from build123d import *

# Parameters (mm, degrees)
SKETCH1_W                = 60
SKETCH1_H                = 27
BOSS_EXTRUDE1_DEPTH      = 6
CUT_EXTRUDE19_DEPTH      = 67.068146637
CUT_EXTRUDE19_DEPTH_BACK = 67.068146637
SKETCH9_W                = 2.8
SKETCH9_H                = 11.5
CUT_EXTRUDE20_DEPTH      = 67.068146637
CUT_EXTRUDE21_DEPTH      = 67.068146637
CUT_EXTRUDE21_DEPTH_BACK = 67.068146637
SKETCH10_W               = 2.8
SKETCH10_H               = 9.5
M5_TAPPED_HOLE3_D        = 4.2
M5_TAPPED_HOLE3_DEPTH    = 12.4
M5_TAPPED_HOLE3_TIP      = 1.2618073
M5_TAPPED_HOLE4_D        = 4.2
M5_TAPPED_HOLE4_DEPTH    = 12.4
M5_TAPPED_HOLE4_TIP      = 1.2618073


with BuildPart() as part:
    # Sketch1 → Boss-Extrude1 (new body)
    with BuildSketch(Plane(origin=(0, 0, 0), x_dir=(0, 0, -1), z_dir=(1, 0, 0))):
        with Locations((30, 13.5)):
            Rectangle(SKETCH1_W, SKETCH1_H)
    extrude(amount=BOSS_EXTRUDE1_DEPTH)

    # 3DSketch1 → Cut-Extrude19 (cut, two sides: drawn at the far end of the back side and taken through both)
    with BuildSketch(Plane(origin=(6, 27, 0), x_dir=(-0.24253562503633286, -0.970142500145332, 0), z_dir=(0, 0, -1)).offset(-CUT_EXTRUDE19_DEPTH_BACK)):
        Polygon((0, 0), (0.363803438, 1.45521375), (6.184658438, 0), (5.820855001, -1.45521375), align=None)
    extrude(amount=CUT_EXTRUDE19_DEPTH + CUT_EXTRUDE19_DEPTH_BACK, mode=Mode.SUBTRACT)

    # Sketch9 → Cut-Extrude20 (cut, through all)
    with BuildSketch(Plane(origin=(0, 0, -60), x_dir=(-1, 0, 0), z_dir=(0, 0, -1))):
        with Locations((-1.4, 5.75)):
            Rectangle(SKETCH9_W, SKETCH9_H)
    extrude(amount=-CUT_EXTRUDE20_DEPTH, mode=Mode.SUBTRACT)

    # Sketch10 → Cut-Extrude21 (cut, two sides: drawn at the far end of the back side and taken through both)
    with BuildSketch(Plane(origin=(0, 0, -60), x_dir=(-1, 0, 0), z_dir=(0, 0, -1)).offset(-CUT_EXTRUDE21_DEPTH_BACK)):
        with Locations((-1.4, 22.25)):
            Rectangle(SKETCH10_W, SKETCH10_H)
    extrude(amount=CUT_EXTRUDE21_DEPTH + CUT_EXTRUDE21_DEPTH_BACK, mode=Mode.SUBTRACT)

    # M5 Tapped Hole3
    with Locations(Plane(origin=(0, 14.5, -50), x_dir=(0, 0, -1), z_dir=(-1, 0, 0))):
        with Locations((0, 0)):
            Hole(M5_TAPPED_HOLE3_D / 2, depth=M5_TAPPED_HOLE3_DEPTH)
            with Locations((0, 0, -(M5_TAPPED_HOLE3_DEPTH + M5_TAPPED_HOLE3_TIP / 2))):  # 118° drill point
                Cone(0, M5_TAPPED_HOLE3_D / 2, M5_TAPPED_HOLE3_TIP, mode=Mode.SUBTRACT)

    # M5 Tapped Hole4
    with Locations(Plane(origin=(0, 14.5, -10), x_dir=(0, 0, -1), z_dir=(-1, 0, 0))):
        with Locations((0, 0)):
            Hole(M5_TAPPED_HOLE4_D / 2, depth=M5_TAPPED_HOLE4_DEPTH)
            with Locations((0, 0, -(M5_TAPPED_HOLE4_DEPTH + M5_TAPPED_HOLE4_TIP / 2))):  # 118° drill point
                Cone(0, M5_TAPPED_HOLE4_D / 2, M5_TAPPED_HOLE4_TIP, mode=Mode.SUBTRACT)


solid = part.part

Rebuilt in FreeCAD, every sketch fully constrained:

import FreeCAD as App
import Part
import Sketcher

V = App.Vector
Q = App.Units.Quantity

doc = App.newDocument("Part")
params = doc.addObject("Spreadsheet::Sheet", "Params")
for row, (alias, value) in enumerate([
    ("sketch1_width", "27 mm"),
    ("sketch1_height", "60 mm"),
    ("pad1_length", "6 mm"),
    ("sketch2_height", "6 mm"),
    ("sketch2_width", "1.5 mm"),
    ("sketch3_width", "2.8 mm"),
    ("sketch3_height", "11.5 mm"),
    ("sketch4_width", "2.8 mm"),
    ("sketch4_height", "9.5 mm"),
    ("sketch5_diameter", "4.2 mm"),
    ("hole_diameter", "4.2 mm"),
    ("hole_depth", "12.4 mm"),
    ("sketch6_diameter", "4.2 mm"),
    ("hole2_diameter", "4.2 mm"),
    ("hole2_depth", "12.4 mm"),
], start=1):
    params.set(f"A{row}", alias)
    params.set(f"B{row}", "=" + value)
    params.setAlias(f"B{row}", alias)

body = doc.addObject("PartDesign::Body", "Body")

sketch1 = doc.addObject("Sketcher::SketchObject", "Sketch")
body.addObject(sketch1)
sketch1.AttachmentSupport = (doc.YZ_Plane, [""])
sketch1.MapMode = "FlatFace"
sketch1.addGeometry([
    Part.LineSegment(V(27, 0, 0), V(0, 0, 0)),
    Part.LineSegment(V(0, 0, 0), V(0, -60, 0)),
    Part.LineSegment(V(0, -60, 0), V(27, -60, 0)),
    Part.LineSegment(V(27, -60, 0), V(27, 0, 0)),
], False)
sketch1.addConstraint([
    Sketcher.Constraint("Coincident", 0, 2, 1, 1),
    Sketcher.Constraint("Coincident", 1, 2, 2, 1),
    Sketcher.Constraint("Coincident", 2, 2, 3, 1),
    Sketcher.Constraint("Coincident", 3, 2, 0, 1),
    Sketcher.Constraint("Horizontal", 0),
    Sketcher.Constraint("Vertical", 1),
    Sketcher.Constraint("Horizontal", 2),
    Sketcher.Constraint("Vertical", 3),
    Sketcher.Constraint("Coincident", 0, 2, -1, 1),
    Sketcher.Constraint("DistanceX", 0, 2, 0, 1, Q("27 mm")),
    Sketcher.Constraint("DistanceY", 1, 2, 1, 1, Q("60 mm")),
])
sketch1.setExpression("Constraints[9]", "Params.sketch1_width")
sketch1.setExpression("Constraints[10]", "Params.sketch1_height")
pad1 = doc.addObject("PartDesign::Pad", "Pad")
body.addObject(pad1)
pad1.Profile = sketch1
pad1.setExpression("Length", "Params.pad1_length")

sketch2 = doc.addObject("Sketcher::SketchObject", "Sketch001")
body.addObject(sketch2)
sketch2.AttachmentSupport = (doc.XY_Plane, [""])
sketch2.MapMode = "FlatFace"
sketch2.addGeometry([
    Part.LineSegment(V(4.5, 27, 0), V(6, 27, 0)),
    Part.LineSegment(V(6, 27, 0), V(6, 21, 0)),
    Part.LineSegment(V(6, 21, 0), V(4.5, 21, 0)),
    Part.LineSegment(V(4.5, 21, 0), V(4.5, 27, 0)),
], False)
sketch2.addConstraint([
    Sketcher.Constraint("Coincident", 0, 2, 1, 1),
    Sketcher.Constraint("Coincident", 1, 2, 2, 1),
    Sketcher.Constraint("Coincident", 2, 2, 3, 1),
    Sketcher.Constraint("Coincident", 3, 2, 0, 1),
    Sketcher.Constraint("Horizontal", 0),
    Sketcher.Constraint("Vertical", 1),
    Sketcher.Constraint("Horizontal", 2),
    Sketcher.Constraint("Vertical", 3),
    Sketcher.Constraint("DistanceY", 1, 2, 1, 1, Q("6 mm")),
    Sketcher.Constraint("DistanceX", 0, 1, 0, 2, Q("1.5 mm")),
    Sketcher.Constraint("DistanceX", -1, 1, 0, 2, Q("6 mm")),
    Sketcher.Constraint("DistanceY", -1, 1, 0, 2, Q("27 mm")),
])
sketch2.setExpression("Constraints[8]", "Params.sketch2_height")
sketch2.setExpression("Constraints[9]", "Params.sketch2_width")
pocket1 = doc.addObject("PartDesign::Pocket", "Pocket")
body.addObject(pocket1)
pocket1.Profile = sketch2
pocket1.Type = "ThroughAll"
pocket1.Midplane = True

sketch3 = doc.addObject("Sketcher::SketchObject", "Sketch002")
body.addObject(sketch3)
sketch3.AttachmentSupport = (doc.XY_Plane, [""])
sketch3.MapMode = "FlatFace"
sketch3.AttachmentOffset = App.Placement(V(0, 0, -60), App.Rotation())
sketch3.addGeometry([
    Part.LineSegment(V(2.8, 11.5, 0), V(2.8, 0, 0)),
    Part.LineSegment(V(2.8, 0, 0), V(0, 0, 0)),
    Part.LineSegment(V(0, 0, 0), V(0, 11.5, 0)),
    Part.LineSegment(V(0, 11.5, 0), V(2.8, 11.5, 0)),
], False)
sketch3.addConstraint([
    Sketcher.Constraint("Coincident", 0, 2, 1, 1),
    Sketcher.Constraint("Coincident", 1, 2, 2, 1),
    Sketcher.Constraint("Coincident", 2, 2, 3, 1),
    Sketcher.Constraint("Coincident", 3, 2, 0, 1),
    Sketcher.Constraint("Vertical", 0),
    Sketcher.Constraint("Horizontal", 1),
    Sketcher.Constraint("Vertical", 2),
    Sketcher.Constraint("Horizontal", 3),
    Sketcher.Constraint("Coincident", 1, 2, -1, 1),
    Sketcher.Constraint("DistanceX", 1, 2, 1, 1, Q("2.8 mm")),
    Sketcher.Constraint("DistanceY", 0, 2, 0, 1, Q("11.5 mm")),
])
sketch3.setExpression("Constraints[9]", "Params.sketch3_width")
sketch3.setExpression("Constraints[10]", "Params.sketch3_height")
pocket2 = doc.addObject("PartDesign::Pocket", "Pocket001")
body.addObject(pocket2)
pocket2.Profile = sketch3
pocket2.Type = "ThroughAll"
pocket2.Reversed = True

sketch4 = doc.addObject("Sketcher::SketchObject", "Sketch003")
body.addObject(sketch4)
sketch4.AttachmentSupport = (doc.XY_Plane, [""])
sketch4.MapMode = "FlatFace"
sketch4.AttachmentOffset = App.Placement(V(0, 0, -60), App.Rotation())
sketch4.addGeometry([
    Part.LineSegment(V(2.8, 27, 0), V(2.8, 17.5, 0)),
    Part.LineSegment(V(2.8, 17.5, 0), V(0, 17.5, 0)),
    Part.LineSegment(V(0, 17.5, 0), V(0, 27, 0)),
    Part.LineSegment(V(0, 27, 0), V(2.8, 27, 0)),
], False)
sketch4.addConstraint([
    Sketcher.Constraint("Coincident", 0, 2, 1, 1),
    Sketcher.Constraint("Coincident", 1, 2, 2, 1),
    Sketcher.Constraint("Coincident", 2, 2, 3, 1),
    Sketcher.Constraint("Coincident", 3, 2, 0, 1),
    Sketcher.Constraint("Vertical", 0),
    Sketcher.Constraint("Horizontal", 1),
    Sketcher.Constraint("Vertical", 2),
    Sketcher.Constraint("Horizontal", 3),
    Sketcher.Constraint("PointOnObject", 1, 2, -2),
    Sketcher.Constraint("DistanceX", 1, 2, 1, 1, Q("2.8 mm")),
    Sketcher.Constraint("DistanceY", 0, 2, 0, 1, Q("9.5 mm")),
    Sketcher.Constraint("DistanceY", -1, 1, 2, 2, Q("27 mm")),
])
sketch4.setExpression("Constraints[9]", "Params.sketch4_width")
sketch4.setExpression("Constraints[10]", "Params.sketch4_height")
pocket3 = doc.addObject("PartDesign::Pocket", "Pocket002")
body.addObject(pocket3)
pocket3.Profile = sketch4
pocket3.Type = "ThroughAll"
pocket3.Midplane = True

sketch5 = doc.addObject("Sketcher::SketchObject", "Sketch004")
body.addObject(sketch5)
sketch5.AttachmentSupport = (doc.YZ_Plane, [""])
sketch5.MapMode = "FlatFace"
sketch5.addGeometry(Part.Circle(V(14.5, -50, 0), V(0, 0, 1), 2.1), False)
sketch5.addConstraint([
    Sketcher.Constraint("Diameter", 0, Q("4.2 mm")),
    Sketcher.Constraint("DistanceY", 0, 3, -1, 1, Q("50 mm")),
    Sketcher.Constraint("DistanceX", -1, 1, 0, 3, Q("14.5 mm")),
])
sketch5.setExpression("Constraints[0]", "Params.sketch5_diameter")
doc.recompute()
hole = doc.addObject("PartDesign::Hole", "Hole")
body.addObject(hole)
hole.Profile = sketch5
hole.ThreadType = "None"
hole.setExpression("Diameter", "Params.hole_diameter")
hole.DepthType = "Dimension"
hole.setExpression("Depth", "Params.hole_depth")
hole.DrillPoint = "Angled"
hole.DrillPointAngle = 118
hole.Reversed = True

sketch6 = doc.addObject("Sketcher::SketchObject", "Sketch005")
body.addObject(sketch6)
sketch6.AttachmentSupport = (doc.YZ_Plane, [""])
sketch6.MapMode = "FlatFace"
sketch6.addGeometry(Part.Circle(V(14.5, -10, 0), V(0, 0, 1), 2.1), False)
sketch6.addConstraint([
    Sketcher.Constraint("Diameter", 0, Q("4.2 mm")),
    Sketcher.Constraint("DistanceY", 0, 3, -1, 1, Q("10 mm")),
    Sketcher.Constraint("DistanceX", -1, 1, 0, 3, Q("14.5 mm")),
])
sketch6.setExpression("Constraints[0]", "Params.sketch6_diameter")
doc.recompute()
hole2 = doc.addObject("PartDesign::Hole", "Hole001")
body.addObject(hole2)
hole2.Profile = sketch6
hole2.ThreadType = "None"
hole2.setExpression("Diameter", "Params.hole2_diameter")
hole2.DepthType = "Dimension"
hole2.setExpression("Depth", "Params.hole2_depth")
hole2.DrillPoint = "Angled"
hole2.DrillPointAngle = 118
hole2.Reversed = True

doc.recompute()
